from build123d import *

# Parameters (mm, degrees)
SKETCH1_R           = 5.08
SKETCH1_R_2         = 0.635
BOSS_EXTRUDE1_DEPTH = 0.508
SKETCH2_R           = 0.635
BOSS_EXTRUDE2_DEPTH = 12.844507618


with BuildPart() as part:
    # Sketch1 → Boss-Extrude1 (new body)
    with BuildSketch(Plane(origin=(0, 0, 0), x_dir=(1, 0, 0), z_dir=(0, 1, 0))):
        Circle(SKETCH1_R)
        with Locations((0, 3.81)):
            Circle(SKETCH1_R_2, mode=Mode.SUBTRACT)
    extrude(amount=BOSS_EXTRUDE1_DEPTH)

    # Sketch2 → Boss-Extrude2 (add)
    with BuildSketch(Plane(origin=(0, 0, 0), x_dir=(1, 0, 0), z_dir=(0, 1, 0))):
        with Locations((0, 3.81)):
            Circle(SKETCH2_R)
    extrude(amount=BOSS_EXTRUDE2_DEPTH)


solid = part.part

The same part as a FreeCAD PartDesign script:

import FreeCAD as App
import Part
import Sketcher
from FreeCAD import Vector
Q = App.Units.Quantity

doc = App.newDocument("Part")
body = doc.addObject("PartDesign::Body", "Body")

# Sketch on XZ plane
sketch1 = doc.addObject("Sketcher::SketchObject", "Sketch")
body.addObject(sketch1)
sketch1.AttachmentSupport = (doc.XZ_Plane, [""])
sketch1.MapMode = "FlatFace"
sketch1.addGeometry(Part.Circle(Vector(0, 0, 0), Vector(0, 0, 1), 5.1), False)
sketch1.addGeometry(Part.Circle(Vector(0, -3.8, 0), Vector(0, 0, 1), 0.6), False)
sketch1.addConstraint(Sketcher.Constraint("Coincident", 0, 3, -1, 1))
sketch1.addConstraint(Sketcher.Constraint("PointOnObject", 1, 3, -2))
sketch1.addConstraint(Sketcher.Constraint("Diameter", 0, Q("0.4 in")))
sketch1.addConstraint(Sketcher.Constraint("Diameter", 1, Q("0.05 in")))
sketch1.addConstraint(Sketcher.Constraint("DistanceY", 1, 3, -1, 1, Q("0.15 in")))
pad1 = doc.addObject("PartDesign::Pad", "Pad")
body.addObject(pad1)
pad1.Profile = sketch1
pad1.Length = Q("0.02 in")
pad1.Reversed = True

# Sketch on XZ plane
sketch2 = doc.addObject("Sketcher::SketchObject", "Sketch001")
body.addObject(sketch2)
sketch2.AttachmentSupport = (doc.XZ_Plane, [""])
sketch2.MapMode = "FlatFace"
sketch2.addGeometry(Part.Circle(Vector(0, -3.8, 0), Vector(0, 0, 1), 0.6), False)
sketch2.addConstraint(Sketcher.Constraint("PointOnObject", 0, 3, -2))
sketch2.addConstraint(Sketcher.Constraint("Diameter", 0, Q("0.05 in")))
sketch2.addConstraint(Sketcher.Constraint("DistanceY", 0, 3, -1, 1, Q("0.15 in")))
pad2 = doc.addObject("PartDesign::Pad", "Pad001")
body.addObject(pad2)
pad2.Profile = sketch2
pad2.Length = 12.844508
pad2.Reversed = True

doc.recompute()
